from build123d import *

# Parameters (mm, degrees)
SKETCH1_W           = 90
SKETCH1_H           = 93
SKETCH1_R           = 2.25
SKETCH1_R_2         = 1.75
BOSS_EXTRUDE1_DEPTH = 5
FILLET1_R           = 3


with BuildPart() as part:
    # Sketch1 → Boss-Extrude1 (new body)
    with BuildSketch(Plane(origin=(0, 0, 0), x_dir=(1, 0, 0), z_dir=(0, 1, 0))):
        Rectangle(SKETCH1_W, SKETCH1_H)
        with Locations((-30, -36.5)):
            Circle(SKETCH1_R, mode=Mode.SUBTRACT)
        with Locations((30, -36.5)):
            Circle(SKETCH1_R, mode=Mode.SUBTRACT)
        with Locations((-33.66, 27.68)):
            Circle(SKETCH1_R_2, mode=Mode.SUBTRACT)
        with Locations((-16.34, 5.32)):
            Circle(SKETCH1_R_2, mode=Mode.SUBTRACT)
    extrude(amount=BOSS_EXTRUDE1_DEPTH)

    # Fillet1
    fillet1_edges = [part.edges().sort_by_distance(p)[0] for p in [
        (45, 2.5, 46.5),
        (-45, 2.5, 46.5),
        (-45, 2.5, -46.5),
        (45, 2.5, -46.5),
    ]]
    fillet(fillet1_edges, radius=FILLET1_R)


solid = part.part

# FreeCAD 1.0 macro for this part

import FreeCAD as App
import Part
import Sketcher

V = App.Vector
Q = App.Units.Quantity


def edges_at(feature, points):
    """Names of the edges that pass closest to the given points."""
    edges = feature.Shape.Edges
    near = lambda p: min(range(len(edges)), key=lambda i: edges[i].distToShape(Part.Vertex(*p))[0])
    return sorted({f"Edge{near(p) + 1}" for p in points})


def add_polygon(sketch, points):
    """Adds a closed chain of lines whose ends are joined by coincident constraints."""
    first, n = sketch.GeometryCount, len(points)
    for a, b in zip(points, points[1:] + points[:1]):
        sketch.addGeometry(Part.LineSegment(App.Vector(*a, 0), App.Vector(*b, 0)), False)
    for i in range(n):
        sketch.addConstraint(Sketcher.Constraint("Coincident", first + i, 2, first + (i + 1) % n, 1))

doc = App.newDocument("Part")
params = doc.addObject("Spreadsheet::Sheet", "Params")
for row, (alias, value) in enumerate([
    ("sketch1_diameter", "4.5 mm"),
    ("sketch1_diameter2", "3.5 mm"),
    ("sketch1_width", "90 mm"),
    ("sketch1_height", "93 mm"),
    ("pad1_length", "5 mm"),
    ("fillet_radius", "3 mm"),
], start=1):
    params.set(f"A{row}", alias)
    params.set(f"B{row}", "=" + value)
    params.setAlias(f"B{row}", alias)

body = doc.addObject("PartDesign::Body", "Body")

sketch1 = body.newObject("Sketcher::SketchObject", "Sketch")
sketch1.AttachmentSupport = (doc.getObject("XZ_Plane"), [""])
sketch1.MapMode = "FlatFace"
add_polygon(sketch1, [(-45, -46.5), (-45, 46.5), (45, 46.5), (45, -46.5)])
sketch1.addGeometry(Part.Circle(V(-30, 36.5, 0), V(0, 0, 1), 2.2), False)
sketch1.addGeometry(Part.Circle(V(30, 36.5, 0), V(0, 0, 1), 2.2), False)
sketch1.addGeometry(Part.Circle(V(-16.3, -5.3, 0), V(0, 0, 1), 1.8), False)
sketch1.addGeometry(Part.Circle(V(-33.7, -27.7, 0), V(0, 0, 1), 1.8), False)
sketch1.addConstraint([
    Sketcher.Constraint("Vertical", 0),
    Sketcher.Constraint("Horizontal", 1),
    Sketcher.Constraint("Vertical", 2),
    Sketcher.Constraint("Horizontal", 3),
    Sketcher.Constraint("Equal", 4, 5),
    Sketcher.Constraint("Equal", 6, 7),
    Sketcher.Constraint("Symmetric", 0, 2, 2, 2, -1, 1),
    Sketcher.Constraint("Symmetric", 4, 3, 5, 3, -2),
    Sketcher.Constraint("Diameter", 4, Q("4.5 mm")),
    Sketcher.Constraint("Diameter", 6, Q("3.5 mm")),
    Sketcher.Constraint("DistanceX", 1, 1, 1, 2, Q("90 mm")),
    Sketcher.Constraint("DistanceY", 0, 1, 0, 2, Q("93 mm")),
    Sketcher.Constraint("DistanceX", 4, 3, -1, 1, Q("30 mm")),
    Sketcher.Constraint("DistanceY", 4, 3, 0, 2, Q("10 mm")),
    Sketcher.Constraint("DistanceX", 6, 3, -1, 1, Q("16.34 mm")),
    Sketcher.Constraint("DistanceY", 6, 3, -1, 1, Q("5.32 mm")),
    Sketcher.Constraint("DistanceX", 7, 3, -1, 1, Q("33.66 mm")),
    Sketcher.Constraint("DistanceY", 7, 3, -1, 1, Q("27.68 mm")),
])
sketch1.setExpression("Constraints[12]", "Params.sketch1_diameter")
sketch1.setExpression("Constraints[13]", "Params.sketch1_diameter2")
sketch1.setExpression("Constraints[14]", "Params.sketch1_width")
sketch1.setExpression("Constraints[15]", "Params.sketch1_height")
pad1 = body.newObject("PartDesign::Pad", "Pad")
pad1.Profile = sketch1
pad1.setExpression("Length", "Params.pad1_length")
pad1.Reversed = True
doc.recompute()

fillet = body.newObject("PartDesign::Fillet", "Fillet")
fillet.Base = (pad1, edges_at(pad1, [
    (45, 2.5, 46.5),
    (-45, 2.5, 46.5),
    (-45, 2.5, -46.5),
    (45, 2.5, -46.5),
]))
fillet.setExpression("Radius", "Params.fillet_radius")

doc.recompute()
